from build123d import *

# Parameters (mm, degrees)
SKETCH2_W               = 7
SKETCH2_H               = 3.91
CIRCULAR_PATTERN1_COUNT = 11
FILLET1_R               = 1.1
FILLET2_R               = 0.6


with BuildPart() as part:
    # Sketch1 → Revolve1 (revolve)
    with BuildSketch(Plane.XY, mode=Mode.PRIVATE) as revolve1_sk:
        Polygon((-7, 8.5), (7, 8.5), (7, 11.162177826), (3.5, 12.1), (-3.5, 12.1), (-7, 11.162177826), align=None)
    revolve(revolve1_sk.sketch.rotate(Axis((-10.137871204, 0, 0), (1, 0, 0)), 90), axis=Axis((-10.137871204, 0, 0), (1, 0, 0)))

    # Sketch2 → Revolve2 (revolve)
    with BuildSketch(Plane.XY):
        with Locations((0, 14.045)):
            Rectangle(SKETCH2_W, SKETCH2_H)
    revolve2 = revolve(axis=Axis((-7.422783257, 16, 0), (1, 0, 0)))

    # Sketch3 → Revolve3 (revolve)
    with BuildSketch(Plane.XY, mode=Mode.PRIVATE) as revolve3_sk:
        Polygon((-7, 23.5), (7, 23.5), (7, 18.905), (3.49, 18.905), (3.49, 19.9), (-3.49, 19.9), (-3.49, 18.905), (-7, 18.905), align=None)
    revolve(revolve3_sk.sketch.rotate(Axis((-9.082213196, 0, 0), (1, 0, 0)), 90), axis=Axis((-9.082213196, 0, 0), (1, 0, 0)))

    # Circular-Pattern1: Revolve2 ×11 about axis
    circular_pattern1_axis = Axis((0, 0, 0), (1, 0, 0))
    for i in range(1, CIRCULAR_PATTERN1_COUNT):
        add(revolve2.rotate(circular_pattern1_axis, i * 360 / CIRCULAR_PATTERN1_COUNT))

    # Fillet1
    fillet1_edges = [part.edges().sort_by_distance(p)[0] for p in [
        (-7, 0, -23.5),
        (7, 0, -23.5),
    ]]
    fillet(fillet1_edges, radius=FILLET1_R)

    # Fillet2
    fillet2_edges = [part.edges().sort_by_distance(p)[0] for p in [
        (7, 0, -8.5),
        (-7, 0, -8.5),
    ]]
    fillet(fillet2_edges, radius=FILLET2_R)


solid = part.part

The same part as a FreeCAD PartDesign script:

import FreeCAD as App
import Part
import Sketcher
from FreeCAD import Vector
Q = App.Units.Quantity


def edges_at(feature, points):
    """Names of the edges that pass closest to the given points."""
    edges = feature.Shape.Edges
    near = lambda p: min(range(len(edges)), key=lambda i: edges[i].distToShape(Part.Vertex(*p))[0])
    return sorted({f"Edge{near(p) + 1}" for p in points})


def add_polygon(sketch, points):
    """Adds a closed chain of lines whose ends are joined by coincident constraints."""
    first, n = sketch.GeometryCount, len(points)
    for a, b in zip(points, points[1:] + points[:1]):
        sketch.addGeometry(Part.LineSegment(App.Vector(*a, 0), App.Vector(*b, 0)), False)
    for i in range(n):
        sketch.addConstraint(Sketcher.Constraint("Coincident", first + i, 2, first + (i + 1) % n, 1))

doc = App.newDocument("Part")
body = doc.addObject("PartDesign::Body", "Body")

# Sketch on XY plane
sketch1 = body.newObject("Sketcher::SketchObject", "Sketch")
sketch1.AttachmentSupport = (doc.getObject("XY_Plane"), [""])
sketch1.MapMode = "FlatFace"
add_polygon(sketch1, [(-7, 8.5), (7, 8.5), (7, 11.2), (3.5, 12.1), (-3.5, 12.1), (-7, 11.2)])  # lines 0-5
sketch1.addConstraint([
    Sketcher.Constraint("Horizontal", 0),
    Sketcher.Constraint("Vertical", 1),
    Sketcher.Constraint("Horizontal", 3),
    Sketcher.Constraint("Vertical", 5),
    Sketcher.Constraint("Symmetric", 1, 2, 4, 2, -2),
    Sketcher.Constraint("Equal", 2, 4),
    Sketcher.Constraint("DistanceX", 0, 1, 0, 2, 14.0),
    Sketcher.Constraint("DistanceX", 3, 2, 3, 1, 7.0),
    Sketcher.Constraint("Angle", 2, Q("165 deg")),
    Sketcher.Constraint("DistanceY", -1, 1, 0, 2, 8.5),
    Sketcher.Constraint("DistanceY", -1, 1, 2, 2, 12.1),
])
revolution = body.newObject("PartDesign::Revolution", "Revolution")
revolution.Profile = sketch1
revolution.ReferenceAxis = (sketch1, ["H_Axis"])
revolution.Angle = 360

# Sketch on XY plane
sketch2 = body.newObject("Sketcher::SketchObject", "Sketch001")
sketch2.AttachmentSupport = (doc.getObject("XY_Plane"), [""])
sketch2.MapMode = "FlatFace"
add_polygon(sketch2, [(-3.5, 16), (-3.5, 12.1), (3.5, 12.1), (3.5, 16)])  # lines 0-3
sketch2.addGeometry(Part.LineSegment(Vector(-3.5, 16, 0), Vector(3.5, 16, 0)), True)  # axis
sketch2.addConstraint([
    Sketcher.Constraint("Vertical", 0),
    Sketcher.Constraint("Horizontal", 1),
    Sketcher.Constraint("Vertical", 2),
    Sketcher.Constraint("Horizontal", 3),
    Sketcher.Constraint("Horizontal", 4),
    Sketcher.Constraint("Coincident", 4, 1, 3, 2),
    Sketcher.Constraint("Vertical", 1, 2, 4, 2),
    Sketcher.Constraint("DistanceX", 1, 1, 1, 2, 7.0),
    Sketcher.Constraint("DistanceY", -1, 1, 2, 2, 16.0),
    Sketcher.Constraint("DistanceY", 0, 2, 0, 1, 3.91),
    Sketcher.Constraint("DistanceX", 0, 2, -1, 1, 3.5),
])
revolution2 = body.newObject("PartDesign::Revolution", "Revolution001")
revolution2.Profile = sketch2
revolution2.ReferenceAxis = (sketch2, ["Axis0"])
revolution2.Angle = 360

# Sketch on XY plane
sketch3 = body.newObject("Sketcher::SketchObject", "Sketch002")
sketch3.AttachmentSupport = (doc.getObject("XY_Plane"), [""])
sketch3.MapMode = "FlatFace"
add_polygon(sketch3, [(7, 23.5), (-7, 23.5), (-7, 18.9), (-3.5, 18.9), (-3.5, 19.9), (3.5, 19.9), (3.5, 18.9), (7, 18.9)])  # lines 0-7
sketch3.addConstraint([
    Sketcher.Constraint("Horizontal", 0),
    Sketcher.Constraint("Vertical", 1),
    Sketcher.Constraint("Horizontal", 2),
    Sketcher.Constraint("Vertical", 3),
    Sketcher.Constraint("Horizontal", 4),
    Sketcher.Constraint("Vertical", 5),
    Sketcher.Constraint("Horizontal", 6),
    Sketcher.Constraint("Vertical", 7),
    Sketcher.Constraint("Symmetric", 2, 2, 5, 2, -2),
    Sketcher.Constraint("Equal", 2, 6),
    Sketcher.Constraint("DistanceX", 0, 2, 0, 1, 14.0),
    Sketcher.Constraint("DistanceX", 2, 1, 2, 2, 3.51),
    Sketcher.Constraint("DistanceY", -1, 1, 0, 2, 23.5),
    Sketcher.Constraint("DistanceY", -1, 1, 3, 2, 19.9),
    Sketcher.Constraint("DistanceY", 1, 2, 1, 1, 4.595),
])
revolution3 = body.newObject("PartDesign::Revolution", "Revolution002")
revolution3.Profile = sketch3
revolution3.ReferenceAxis = (sketch3, ["H_Axis"])
revolution3.Angle = 360
doc.recompute()

polarpattern = body.newObject("PartDesign::PolarPattern", "PolarPattern")
polarpattern.Originals = [revolution2]
polarpattern.Axis = (doc.getObject("X_Axis"), [""])
polarpattern.Angle = 360
polarpattern.Occurrences = 11
body.Tip = polarpattern
doc.recompute()

fillet = body.newObject("PartDesign::Fillet", "Fillet")
fillet.Base = (polarpattern, edges_at(polarpattern, [(-7, 0, -23.5), (7, 0, -23.5)]))
fillet.Radius = 1.1
doc.recompute()

fillet2 = body.newObject("PartDesign::Fillet", "Fillet001")
fillet2.Base = (fillet, edges_at(fillet, [(7, 0, -8.5), (-7, 0, -8.5)]))
fillet2.Radius = 0.6

doc.recompute()
